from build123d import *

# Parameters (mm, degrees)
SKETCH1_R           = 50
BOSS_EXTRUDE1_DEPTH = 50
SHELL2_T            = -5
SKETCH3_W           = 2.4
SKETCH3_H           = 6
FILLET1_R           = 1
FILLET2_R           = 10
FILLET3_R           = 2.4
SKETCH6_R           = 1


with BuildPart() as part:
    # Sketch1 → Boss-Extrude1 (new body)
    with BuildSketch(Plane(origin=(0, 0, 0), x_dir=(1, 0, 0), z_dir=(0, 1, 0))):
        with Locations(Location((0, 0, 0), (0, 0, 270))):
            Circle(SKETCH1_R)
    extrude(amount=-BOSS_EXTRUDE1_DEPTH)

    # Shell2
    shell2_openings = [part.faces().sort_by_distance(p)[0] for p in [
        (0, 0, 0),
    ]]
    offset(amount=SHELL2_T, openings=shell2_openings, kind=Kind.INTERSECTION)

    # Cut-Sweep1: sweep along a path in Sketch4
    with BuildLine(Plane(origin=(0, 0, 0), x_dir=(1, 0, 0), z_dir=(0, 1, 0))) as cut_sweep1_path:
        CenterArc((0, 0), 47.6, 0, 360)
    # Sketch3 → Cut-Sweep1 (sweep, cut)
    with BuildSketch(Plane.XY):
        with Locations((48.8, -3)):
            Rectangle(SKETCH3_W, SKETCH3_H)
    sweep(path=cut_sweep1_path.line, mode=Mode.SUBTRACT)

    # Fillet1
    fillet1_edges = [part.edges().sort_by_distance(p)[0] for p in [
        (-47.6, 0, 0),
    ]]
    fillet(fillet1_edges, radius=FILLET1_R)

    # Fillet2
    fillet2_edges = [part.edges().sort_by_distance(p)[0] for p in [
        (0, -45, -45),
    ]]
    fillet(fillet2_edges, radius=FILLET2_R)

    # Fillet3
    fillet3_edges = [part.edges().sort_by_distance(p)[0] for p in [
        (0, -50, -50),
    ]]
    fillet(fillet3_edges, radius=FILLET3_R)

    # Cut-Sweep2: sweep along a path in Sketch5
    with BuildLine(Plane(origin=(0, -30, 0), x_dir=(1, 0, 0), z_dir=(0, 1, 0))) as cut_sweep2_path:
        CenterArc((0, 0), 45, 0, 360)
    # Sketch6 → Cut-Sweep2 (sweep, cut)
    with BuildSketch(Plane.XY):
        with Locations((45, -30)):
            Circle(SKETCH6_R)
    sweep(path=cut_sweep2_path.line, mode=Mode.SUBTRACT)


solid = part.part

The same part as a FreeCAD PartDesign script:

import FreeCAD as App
import Part
import Sketcher
Q = App.Units.Quantity


def edges_at(feature, points):
    """Names of the edges that pass closest to the given points."""
    edges = feature.Shape.Edges
    near = lambda p: min(range(len(edges)), key=lambda i: edges[i].distToShape(Part.Vertex(*p))[0])
    return sorted({f"Edge{near(p) + 1}" for p in points})


def faces_at(feature, points):
    """Names of the faces that lie closest to the given points."""
    faces = feature.Shape.Faces
    near = lambda p: min(range(len(faces)), key=lambda i: faces[i].distToShape(Part.Vertex(*p))[0])
    return sorted({f"Face{near(p) + 1}" for p in points})

doc = App.newDocument("Part")
body = doc.addObject("PartDesign::Body", "Body")

# Sketch on XZ plane
sketch1 = body.newObject("Sketcher::SketchObject", "Sketch")
sketch1.AttachmentSupport = (doc.getObject("XZ_Plane"), [""])
sketch1.MapMode = "FlatFace"
sketch1.addGeometry(Part.Circle(App.Vector(0, 0, 0), App.Vector(0, 0, 1), 50), False)
sketch1.addConstraint([
    Sketcher.Constraint("Coincident", 0, 3, -1, 1),
    Sketcher.Constraint("Diameter", 0, Q("100 mm")),
])
pad1 = body.newObject("PartDesign::Pad", "Pad")
pad1.Profile = sketch1
pad1.Length = 50
doc.recompute()

thickness = body.newObject("PartDesign::Thickness", "Thickness")
thickness.Base = (pad1, faces_at(pad1, [(0, 0, 0)]))
thickness.Value = 5
thickness.Reversed = True
thickness.Join = "Intersection"

# Sketch on XY plane
sketch2 = body.newObject("Sketcher::SketchObject", "Sketch001")
sketch2.AttachmentSupport = (doc.getObject("XY_Plane"), [""])
sketch2.MapMode = "FlatFace"
sketch2.addGeometry([
    Part.LineSegment(App.Vector(47.6, 0, 0), App.Vector(47.6, -6, 0)),
    Part.LineSegment(App.Vector(47.6, -6, 0), App.Vector(50, -6, 0)),
    Part.LineSegment(App.Vector(50, -6, 0), App.Vector(50, 0, 0)),
    Part.LineSegment(App.Vector(50, 0, 0), App.Vector(47.6, 0, 0)),
], False)
sketch2.addConstraint([
    Sketcher.Constraint("Coincident", 0, 2, 1, 1),
    Sketcher.Constraint("Coincident", 1, 2, 2, 1),
    Sketcher.Constraint("Coincident", 2, 2, 3, 1),
    Sketcher.Constraint("Coincident", 3, 2, 0, 1),
    Sketcher.Constraint("Vertical", 0),
    Sketcher.Constraint("Horizontal", 1),
    Sketcher.Constraint("Vertical", 2),
    Sketcher.Constraint("Horizontal", 3),
    Sketcher.Constraint("PointOnObject", 2, 2, -1),
    Sketcher.Constraint("DistanceY", 0, 2, 0, 1, Q("6 mm")),
    Sketcher.Constraint("DistanceX", 1, 1, 1, 2, Q("2.4 mm")),
    Sketcher.Constraint("DistanceX", -1, 1, 1, 2, Q("50 mm")),
])

# Sketch on XZ plane
sketch3 = body.newObject("Sketcher::SketchObject", "Sketch002")
sketch3.AttachmentSupport = (doc.getObject("XZ_Plane"), [""])
sketch3.MapMode = "FlatFace"
sketch3.addGeometry(Part.Circle(App.Vector(0, 0, 0), App.Vector(0, 0, 1), 48), False)
sketch3.addConstraint([
    Sketcher.Constraint("Coincident", 0, 3, -1, 1),
    Sketcher.Constraint("Diameter", 0, Q("95.2 mm")),
])
doc.recompute()

subtractivepipe = body.newObject("PartDesign::SubtractivePipe", "SubtractivePipe")
subtractivepipe.Profile = sketch2
subtractivepipe.Spine = (sketch3, ["Edge1"])
doc.recompute()

fillet = body.newObject("PartDesign::Fillet", "Fillet")
fillet.Base = (subtractivepipe, edges_at(subtractivepipe, [(-47.6, 0, 0)]))
fillet.Radius = 1
doc.recompute()

fillet2 = body.newObject("PartDesign::Fillet", "Fillet001")
fillet2.Base = (fillet, edges_at(fillet, [(0, -45, -45)]))
fillet2.Radius = 10
doc.recompute()

fillet3 = body.newObject("PartDesign::Fillet", "Fillet002")
fillet3.Base = (fillet2, edges_at(fillet2, [(0, -50, -50)]))
fillet3.Radius = 2.4

# Sketch on XY plane
sketch4 = body.newObject("Sketcher::SketchObject", "Sketch003")
sketch4.AttachmentSupport = (doc.getObject("XY_Plane"), [""])
sketch4.MapMode = "FlatFace"
sketch4.addGeometry(Part.Circle(App.Vector(45, -30, 0), App.Vector(0, 0, 1), 1), False)
sketch4.addConstraint([
    Sketcher.Constraint("Diameter", 0, Q("2 mm")),
    Sketcher.Constraint("DistanceX", -1, 1, 0, 3, Q("45 mm")),
    Sketcher.Constraint("DistanceY", 0, 3, -1, 1, Q("30 mm")),
])

# Sketch on XZ plane
sketch5 = body.newObject("Sketcher::SketchObject", "Sketch004")
sketch5.AttachmentSupport = (doc.getObject("XZ_Plane"), [""])
sketch5.MapMode = "FlatFace"
sketch5.AttachmentOffset = App.Placement(App.Vector(0, 0, 30), App.Rotation())
sketch5.addGeometry(Part.Circle(App.Vector(0, 0, 0), App.Vector(0, 0, 1), 45), False)
sketch5.addConstraint([
    Sketcher.Constraint("Coincident", 0, 3, -1, 1),
    Sketcher.Constraint("Diameter", 0, Q("90 mm")),
])
doc.recompute()

subtractivepipe2 = body.newObject("PartDesign::SubtractivePipe", "SubtractivePipe001")
subtractivepipe2.Profile = sketch4
subtractivepipe2.Spine = (sketch5, ["Edge1"])

doc.recompute()
